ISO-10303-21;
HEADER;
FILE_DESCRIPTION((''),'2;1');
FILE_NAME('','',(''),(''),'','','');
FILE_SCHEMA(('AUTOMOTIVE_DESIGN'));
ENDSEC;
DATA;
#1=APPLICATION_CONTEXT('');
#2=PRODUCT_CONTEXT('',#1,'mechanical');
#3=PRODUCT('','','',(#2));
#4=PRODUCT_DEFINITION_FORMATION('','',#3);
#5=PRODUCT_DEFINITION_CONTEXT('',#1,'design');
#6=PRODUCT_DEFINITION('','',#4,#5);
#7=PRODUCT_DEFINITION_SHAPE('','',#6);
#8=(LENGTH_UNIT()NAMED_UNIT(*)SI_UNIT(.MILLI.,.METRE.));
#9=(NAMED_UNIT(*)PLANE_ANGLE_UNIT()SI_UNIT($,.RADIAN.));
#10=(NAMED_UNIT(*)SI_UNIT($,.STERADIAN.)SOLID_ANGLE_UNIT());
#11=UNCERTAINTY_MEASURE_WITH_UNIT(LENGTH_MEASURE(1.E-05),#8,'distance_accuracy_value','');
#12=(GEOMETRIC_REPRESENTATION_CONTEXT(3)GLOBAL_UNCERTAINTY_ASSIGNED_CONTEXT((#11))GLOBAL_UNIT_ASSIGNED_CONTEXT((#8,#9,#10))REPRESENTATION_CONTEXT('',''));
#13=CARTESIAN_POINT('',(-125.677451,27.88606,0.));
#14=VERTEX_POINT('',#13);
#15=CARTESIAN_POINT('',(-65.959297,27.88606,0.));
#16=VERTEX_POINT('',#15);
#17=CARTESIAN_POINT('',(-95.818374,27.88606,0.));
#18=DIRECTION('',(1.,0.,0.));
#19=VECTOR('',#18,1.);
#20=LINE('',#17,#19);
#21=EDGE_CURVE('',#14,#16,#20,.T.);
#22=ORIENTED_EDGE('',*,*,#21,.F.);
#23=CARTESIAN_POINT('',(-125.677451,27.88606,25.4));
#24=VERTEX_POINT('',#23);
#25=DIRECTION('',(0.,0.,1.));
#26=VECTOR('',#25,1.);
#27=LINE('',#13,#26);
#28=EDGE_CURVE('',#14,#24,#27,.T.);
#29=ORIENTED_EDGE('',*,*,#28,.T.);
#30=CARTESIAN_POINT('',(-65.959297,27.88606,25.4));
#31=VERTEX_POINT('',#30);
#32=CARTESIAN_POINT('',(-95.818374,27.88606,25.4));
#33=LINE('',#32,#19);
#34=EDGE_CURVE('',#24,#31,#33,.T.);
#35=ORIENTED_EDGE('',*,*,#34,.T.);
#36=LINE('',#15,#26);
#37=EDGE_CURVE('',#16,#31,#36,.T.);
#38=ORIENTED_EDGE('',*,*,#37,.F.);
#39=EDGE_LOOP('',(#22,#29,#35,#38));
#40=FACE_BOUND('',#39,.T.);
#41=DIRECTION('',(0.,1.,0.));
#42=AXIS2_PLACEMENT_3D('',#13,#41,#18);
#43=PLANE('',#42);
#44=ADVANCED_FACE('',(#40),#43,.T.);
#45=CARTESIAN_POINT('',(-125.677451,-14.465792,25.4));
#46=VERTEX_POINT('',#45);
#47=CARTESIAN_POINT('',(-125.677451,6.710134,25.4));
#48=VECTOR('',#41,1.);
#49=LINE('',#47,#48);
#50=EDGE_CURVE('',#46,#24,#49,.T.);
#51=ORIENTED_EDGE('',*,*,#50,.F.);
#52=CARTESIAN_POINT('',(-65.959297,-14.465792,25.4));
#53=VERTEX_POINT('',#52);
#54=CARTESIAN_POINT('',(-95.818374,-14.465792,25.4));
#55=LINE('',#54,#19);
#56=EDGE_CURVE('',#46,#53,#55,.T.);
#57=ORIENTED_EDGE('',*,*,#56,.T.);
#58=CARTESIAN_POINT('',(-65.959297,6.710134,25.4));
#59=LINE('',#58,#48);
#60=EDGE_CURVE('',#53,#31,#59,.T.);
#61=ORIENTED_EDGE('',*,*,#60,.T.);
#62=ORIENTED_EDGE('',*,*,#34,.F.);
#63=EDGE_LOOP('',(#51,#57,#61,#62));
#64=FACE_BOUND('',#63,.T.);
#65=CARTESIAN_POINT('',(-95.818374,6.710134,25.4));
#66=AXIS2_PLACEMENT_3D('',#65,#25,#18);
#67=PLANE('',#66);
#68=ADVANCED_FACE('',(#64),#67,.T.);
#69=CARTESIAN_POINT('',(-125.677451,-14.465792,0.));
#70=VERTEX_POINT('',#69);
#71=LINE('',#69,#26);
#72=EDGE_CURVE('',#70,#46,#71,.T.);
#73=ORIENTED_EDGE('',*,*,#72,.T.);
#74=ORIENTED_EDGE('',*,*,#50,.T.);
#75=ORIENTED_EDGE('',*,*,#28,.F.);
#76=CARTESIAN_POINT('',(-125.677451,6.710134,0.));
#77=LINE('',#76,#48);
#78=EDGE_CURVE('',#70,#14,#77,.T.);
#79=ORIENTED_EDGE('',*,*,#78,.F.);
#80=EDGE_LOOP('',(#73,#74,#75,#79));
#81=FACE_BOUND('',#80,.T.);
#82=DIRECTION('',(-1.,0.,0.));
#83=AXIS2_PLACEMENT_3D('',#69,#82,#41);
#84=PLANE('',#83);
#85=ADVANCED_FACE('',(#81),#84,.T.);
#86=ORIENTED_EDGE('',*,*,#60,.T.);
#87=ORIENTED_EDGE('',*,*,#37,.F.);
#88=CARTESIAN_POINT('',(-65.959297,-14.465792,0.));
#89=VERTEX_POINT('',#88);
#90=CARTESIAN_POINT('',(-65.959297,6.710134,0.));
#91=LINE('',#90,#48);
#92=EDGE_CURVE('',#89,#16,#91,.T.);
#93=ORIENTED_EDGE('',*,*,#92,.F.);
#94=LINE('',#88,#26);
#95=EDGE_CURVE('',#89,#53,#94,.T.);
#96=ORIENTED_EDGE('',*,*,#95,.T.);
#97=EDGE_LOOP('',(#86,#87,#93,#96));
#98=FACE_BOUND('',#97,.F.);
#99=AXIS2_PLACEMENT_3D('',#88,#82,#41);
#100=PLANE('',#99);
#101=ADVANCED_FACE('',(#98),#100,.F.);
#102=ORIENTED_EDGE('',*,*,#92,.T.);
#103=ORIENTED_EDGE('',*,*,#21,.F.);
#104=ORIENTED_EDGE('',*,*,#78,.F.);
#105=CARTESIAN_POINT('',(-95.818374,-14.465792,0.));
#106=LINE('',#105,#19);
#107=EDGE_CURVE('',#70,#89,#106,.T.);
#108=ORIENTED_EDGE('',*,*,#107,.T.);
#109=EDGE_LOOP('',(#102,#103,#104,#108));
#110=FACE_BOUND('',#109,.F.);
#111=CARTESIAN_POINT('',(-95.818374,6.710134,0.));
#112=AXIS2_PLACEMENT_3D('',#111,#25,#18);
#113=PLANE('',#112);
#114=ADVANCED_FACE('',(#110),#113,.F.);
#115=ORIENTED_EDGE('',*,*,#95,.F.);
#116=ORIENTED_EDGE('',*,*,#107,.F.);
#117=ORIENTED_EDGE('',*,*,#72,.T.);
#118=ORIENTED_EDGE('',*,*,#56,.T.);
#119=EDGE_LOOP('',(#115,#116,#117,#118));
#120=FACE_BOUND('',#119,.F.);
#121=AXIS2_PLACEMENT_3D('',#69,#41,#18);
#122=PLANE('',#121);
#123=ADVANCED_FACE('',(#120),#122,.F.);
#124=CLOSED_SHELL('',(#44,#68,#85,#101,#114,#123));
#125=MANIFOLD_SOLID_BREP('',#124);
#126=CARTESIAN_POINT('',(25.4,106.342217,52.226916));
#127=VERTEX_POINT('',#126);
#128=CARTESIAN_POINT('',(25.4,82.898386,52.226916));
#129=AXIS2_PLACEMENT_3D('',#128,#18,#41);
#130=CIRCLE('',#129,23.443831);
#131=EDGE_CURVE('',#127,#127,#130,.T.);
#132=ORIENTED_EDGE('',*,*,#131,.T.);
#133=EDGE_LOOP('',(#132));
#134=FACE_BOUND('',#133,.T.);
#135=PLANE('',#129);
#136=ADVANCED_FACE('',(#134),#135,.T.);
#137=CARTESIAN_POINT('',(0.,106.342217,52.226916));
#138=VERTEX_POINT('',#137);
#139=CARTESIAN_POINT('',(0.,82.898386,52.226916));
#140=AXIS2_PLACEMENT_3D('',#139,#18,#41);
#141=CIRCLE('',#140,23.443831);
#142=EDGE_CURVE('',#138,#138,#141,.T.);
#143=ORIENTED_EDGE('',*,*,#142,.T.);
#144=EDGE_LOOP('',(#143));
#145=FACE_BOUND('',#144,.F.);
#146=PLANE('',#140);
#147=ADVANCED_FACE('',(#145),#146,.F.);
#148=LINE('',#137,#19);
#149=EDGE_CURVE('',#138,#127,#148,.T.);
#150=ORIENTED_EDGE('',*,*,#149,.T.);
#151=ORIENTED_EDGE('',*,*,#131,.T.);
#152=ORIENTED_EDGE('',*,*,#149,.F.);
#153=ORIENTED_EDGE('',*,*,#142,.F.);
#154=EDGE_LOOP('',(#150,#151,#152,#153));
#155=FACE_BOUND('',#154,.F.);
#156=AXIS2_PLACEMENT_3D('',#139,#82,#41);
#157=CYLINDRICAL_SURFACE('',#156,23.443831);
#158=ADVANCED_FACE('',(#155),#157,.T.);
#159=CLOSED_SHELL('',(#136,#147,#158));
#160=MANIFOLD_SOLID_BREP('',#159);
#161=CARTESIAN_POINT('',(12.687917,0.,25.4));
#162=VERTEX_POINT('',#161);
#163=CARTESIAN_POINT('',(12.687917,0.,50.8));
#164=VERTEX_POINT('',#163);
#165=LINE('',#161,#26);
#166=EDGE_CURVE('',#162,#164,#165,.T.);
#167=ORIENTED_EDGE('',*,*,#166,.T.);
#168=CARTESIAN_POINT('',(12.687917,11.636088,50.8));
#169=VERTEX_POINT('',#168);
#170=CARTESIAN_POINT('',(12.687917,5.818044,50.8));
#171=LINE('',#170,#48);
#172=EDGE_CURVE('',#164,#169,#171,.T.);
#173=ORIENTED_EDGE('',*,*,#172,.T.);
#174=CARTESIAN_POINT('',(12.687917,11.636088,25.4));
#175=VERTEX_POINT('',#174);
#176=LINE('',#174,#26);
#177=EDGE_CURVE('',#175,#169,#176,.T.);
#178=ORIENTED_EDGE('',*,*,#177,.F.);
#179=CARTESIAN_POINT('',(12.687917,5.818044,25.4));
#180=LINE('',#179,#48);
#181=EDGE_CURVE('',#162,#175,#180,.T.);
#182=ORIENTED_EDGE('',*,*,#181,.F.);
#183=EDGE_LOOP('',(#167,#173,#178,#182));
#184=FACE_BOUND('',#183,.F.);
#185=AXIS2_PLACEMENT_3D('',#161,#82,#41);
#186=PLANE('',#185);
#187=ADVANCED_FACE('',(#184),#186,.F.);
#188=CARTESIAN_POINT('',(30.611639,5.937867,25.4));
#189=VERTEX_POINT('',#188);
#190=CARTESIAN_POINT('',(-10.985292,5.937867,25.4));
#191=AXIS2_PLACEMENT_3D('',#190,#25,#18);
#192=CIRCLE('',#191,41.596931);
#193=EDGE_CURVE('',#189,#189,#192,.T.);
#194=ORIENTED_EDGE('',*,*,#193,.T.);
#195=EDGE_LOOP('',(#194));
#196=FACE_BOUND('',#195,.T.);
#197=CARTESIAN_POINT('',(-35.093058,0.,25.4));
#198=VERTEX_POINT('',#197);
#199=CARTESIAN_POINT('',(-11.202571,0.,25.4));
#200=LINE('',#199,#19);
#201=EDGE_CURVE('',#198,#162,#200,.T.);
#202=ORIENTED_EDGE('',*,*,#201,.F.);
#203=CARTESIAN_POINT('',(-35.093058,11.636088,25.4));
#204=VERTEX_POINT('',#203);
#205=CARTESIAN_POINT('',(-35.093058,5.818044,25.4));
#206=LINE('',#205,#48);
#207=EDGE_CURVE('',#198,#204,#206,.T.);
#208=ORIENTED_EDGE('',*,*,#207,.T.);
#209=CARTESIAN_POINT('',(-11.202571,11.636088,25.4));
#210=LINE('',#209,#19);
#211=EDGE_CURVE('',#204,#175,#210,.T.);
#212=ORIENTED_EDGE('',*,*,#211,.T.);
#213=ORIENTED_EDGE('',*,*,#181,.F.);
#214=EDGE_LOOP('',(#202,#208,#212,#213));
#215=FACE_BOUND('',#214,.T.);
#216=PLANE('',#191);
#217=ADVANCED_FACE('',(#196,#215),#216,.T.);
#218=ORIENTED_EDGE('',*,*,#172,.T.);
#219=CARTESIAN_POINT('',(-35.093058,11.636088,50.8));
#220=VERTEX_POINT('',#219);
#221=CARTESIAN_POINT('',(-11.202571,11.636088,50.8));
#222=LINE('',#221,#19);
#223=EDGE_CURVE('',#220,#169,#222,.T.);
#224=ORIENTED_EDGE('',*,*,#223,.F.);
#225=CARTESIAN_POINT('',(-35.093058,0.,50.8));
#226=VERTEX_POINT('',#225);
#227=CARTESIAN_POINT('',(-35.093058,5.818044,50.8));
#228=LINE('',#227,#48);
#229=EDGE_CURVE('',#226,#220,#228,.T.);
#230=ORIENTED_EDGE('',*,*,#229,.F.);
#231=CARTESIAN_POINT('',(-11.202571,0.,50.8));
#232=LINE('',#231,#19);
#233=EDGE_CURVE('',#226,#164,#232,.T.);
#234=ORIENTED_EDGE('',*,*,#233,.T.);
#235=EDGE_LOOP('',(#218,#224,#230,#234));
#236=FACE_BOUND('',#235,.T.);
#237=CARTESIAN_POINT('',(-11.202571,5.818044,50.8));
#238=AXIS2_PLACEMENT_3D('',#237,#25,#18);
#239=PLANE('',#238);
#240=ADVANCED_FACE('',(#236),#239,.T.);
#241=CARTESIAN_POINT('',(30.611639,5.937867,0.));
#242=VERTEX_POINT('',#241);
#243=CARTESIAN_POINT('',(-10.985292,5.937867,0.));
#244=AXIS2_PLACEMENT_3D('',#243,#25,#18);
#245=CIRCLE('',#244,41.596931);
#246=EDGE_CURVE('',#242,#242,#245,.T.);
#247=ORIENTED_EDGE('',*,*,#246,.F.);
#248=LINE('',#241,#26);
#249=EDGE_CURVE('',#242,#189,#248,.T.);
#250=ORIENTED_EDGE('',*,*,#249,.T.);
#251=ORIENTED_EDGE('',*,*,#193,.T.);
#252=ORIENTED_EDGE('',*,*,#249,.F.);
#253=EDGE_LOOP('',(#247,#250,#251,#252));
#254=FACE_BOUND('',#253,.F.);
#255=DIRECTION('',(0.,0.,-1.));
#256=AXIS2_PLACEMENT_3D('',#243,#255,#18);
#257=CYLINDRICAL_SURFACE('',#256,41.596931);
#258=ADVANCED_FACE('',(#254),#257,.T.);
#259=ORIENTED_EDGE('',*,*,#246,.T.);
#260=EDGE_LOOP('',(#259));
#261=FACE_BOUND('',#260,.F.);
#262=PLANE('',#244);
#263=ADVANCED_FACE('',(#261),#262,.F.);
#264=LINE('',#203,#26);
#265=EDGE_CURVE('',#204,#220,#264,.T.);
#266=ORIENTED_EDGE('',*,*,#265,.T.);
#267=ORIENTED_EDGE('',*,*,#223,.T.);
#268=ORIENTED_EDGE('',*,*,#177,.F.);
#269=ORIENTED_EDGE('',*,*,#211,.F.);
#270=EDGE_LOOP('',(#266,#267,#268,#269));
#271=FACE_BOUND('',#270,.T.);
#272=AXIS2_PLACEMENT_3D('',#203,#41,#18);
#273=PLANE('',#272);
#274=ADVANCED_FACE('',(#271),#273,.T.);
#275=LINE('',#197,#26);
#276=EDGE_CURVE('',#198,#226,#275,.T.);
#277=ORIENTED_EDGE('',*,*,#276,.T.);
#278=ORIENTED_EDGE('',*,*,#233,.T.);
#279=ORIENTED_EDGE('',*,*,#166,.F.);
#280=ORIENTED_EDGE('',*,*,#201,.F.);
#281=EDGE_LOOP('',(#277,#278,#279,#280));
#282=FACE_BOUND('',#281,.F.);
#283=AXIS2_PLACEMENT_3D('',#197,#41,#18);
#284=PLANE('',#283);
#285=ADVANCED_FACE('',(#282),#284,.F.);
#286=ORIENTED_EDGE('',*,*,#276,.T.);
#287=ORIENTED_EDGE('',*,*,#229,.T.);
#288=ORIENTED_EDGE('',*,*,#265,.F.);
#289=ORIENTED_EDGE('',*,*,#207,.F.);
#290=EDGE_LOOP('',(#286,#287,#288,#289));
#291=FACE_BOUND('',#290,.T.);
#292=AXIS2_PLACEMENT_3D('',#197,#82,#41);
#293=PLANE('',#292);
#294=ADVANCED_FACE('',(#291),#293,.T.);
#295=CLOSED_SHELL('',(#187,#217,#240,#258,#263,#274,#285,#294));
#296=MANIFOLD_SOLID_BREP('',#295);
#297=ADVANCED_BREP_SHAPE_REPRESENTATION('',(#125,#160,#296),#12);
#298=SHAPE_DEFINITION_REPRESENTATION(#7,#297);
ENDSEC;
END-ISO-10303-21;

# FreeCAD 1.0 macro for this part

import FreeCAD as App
import Part
import Sketcher
Q = App.Units.Quantity


def add_polygon(sketch, points):
    """Adds a closed chain of lines whose ends are joined by coincident constraints."""
    first, n = sketch.GeometryCount, len(points)
    for a, b in zip(points, points[1:] + points[:1]):
        sketch.addGeometry(Part.LineSegment(App.Vector(*a, 0), App.Vector(*b, 0)), False)
    for i in range(n):
        sketch.addConstraint(Sketcher.Constraint("Coincident", first + i, 2, first + (i + 1) % n, 1))

doc = App.newDocument("Part")
body = doc.addObject("PartDesign::Body", "Body")
body.AllowCompound = True

sketch1 = body.newObject("Sketcher::SketchObject", "Sketch")
sketch1.AttachmentSupport = (doc.getObject("XY_Plane"), [""])
sketch1.MapMode = "FlatFace"
sketch1.addGeometry(Part.Circle(App.Vector(-11, 6, 0), App.Vector(0, 0, 1), 42), False)
add_polygon(sketch1, [(-126, 28), (-126, -14), (-66, -14), (-66, 28)])
sketch1.addConstraint(Sketcher.Constraint("Vertical", 1))
sketch1.addConstraint(Sketcher.Constraint("Horizontal", 2))
sketch1.addConstraint(Sketcher.Constraint("Vertical", 3))
sketch1.addConstraint(Sketcher.Constraint("Horizontal", 4))
sketch1.addConstraint(Sketcher.Constraint("Diameter", 0, Q("83.193862 mm")))
sketch1.addConstraint(Sketcher.Constraint("DistanceX", 2, 1, 2, 2, Q("59.718154 mm")))
sketch1.addConstraint(Sketcher.Constraint("DistanceY", 1, 2, 1, 1, Q("42.351853 mm")))
sketch1.addConstraint(Sketcher.Constraint("DistanceX", 0, 3, -1, 1, Q("10.985292 mm")))
sketch1.addConstraint(Sketcher.Constraint("DistanceX", 1, 2, -1, 1, Q("125.677451 mm")))
sketch1.addConstraint(Sketcher.Constraint("DistanceY", -1, 1, 3, 2, Q("27.88606 mm")))
sketch1.addConstraint(Sketcher.Constraint("DistanceY", 1, 2, 0, 3, Q("20.403659 mm")))
pad1 = body.newObject("PartDesign::Pad", "Pad")
pad1.Profile = sketch1
pad1.Length = Q("1 in")

sketch2 = body.newObject("Sketcher::SketchObject", "Sketch001")
sketch2.AttachmentSupport = (doc.getObject("XY_Plane"), [""])
sketch2.MapMode = "FlatFace"
sketch2.AttachmentOffset = App.Placement(App.Vector(0, 0, 1 * 25.4), App.Rotation())
add_polygon(sketch2, [(-35, 12), (-35, 0), (13, 0), (13, 12)])
sketch2.addConstraint(Sketcher.Constraint("Vertical", 0))
sketch2.addConstraint(Sketcher.Constraint("Horizontal", 1))
sketch2.addConstraint(Sketcher.Constraint("Vertical", 2))
sketch2.addConstraint(Sketcher.Constraint("Horizontal", 3))
sketch2.addConstraint(Sketcher.Constraint("PointOnObject", 0, 2, -1))
sketch2.addConstraint(Sketcher.Constraint("DistanceY", 0, 2, 0, 1, Q("11.636088 mm")))
sketch2.addConstraint(Sketcher.Constraint("DistanceX", 1, 1, 1, 2, Q("47.780975 mm")))
sketch2.addConstraint(Sketcher.Constraint("DistanceX", 0, 2, -1, 1, Q("35.093058 mm")))
pad2 = body.newObject("PartDesign::Pad", "Pad001")
pad2.Profile = sketch2
pad2.Length = Q("1 in")
body2 = doc.addObject("PartDesign::Body", "Body001")

sketch3 = body2.newObject("Sketcher::SketchObject", "Sketch002")
sketch3.AttachmentSupport = (doc.getObject("YZ_Plane001"), [""])
sketch3.MapMode = "FlatFace"
sketch3.addGeometry(Part.Circle(App.Vector(83, 52, 0), App.Vector(0, 0, 1), 23), False)
sketch3.addConstraint(Sketcher.Constraint("Diameter", 0, Q("46.887662 mm")))
sketch3.addConstraint(Sketcher.Constraint("DistanceX", -1, 1, 0, 3, Q("82.898386 mm")))
sketch3.addConstraint(Sketcher.Constraint("DistanceY", -1, 1, 0, 3, Q("52.226916 mm")))
pad3 = body2.newObject("PartDesign::Pad", "Pad002")
pad3.Profile = sketch3
pad3.Length = Q("1 in")

doc.recompute()
